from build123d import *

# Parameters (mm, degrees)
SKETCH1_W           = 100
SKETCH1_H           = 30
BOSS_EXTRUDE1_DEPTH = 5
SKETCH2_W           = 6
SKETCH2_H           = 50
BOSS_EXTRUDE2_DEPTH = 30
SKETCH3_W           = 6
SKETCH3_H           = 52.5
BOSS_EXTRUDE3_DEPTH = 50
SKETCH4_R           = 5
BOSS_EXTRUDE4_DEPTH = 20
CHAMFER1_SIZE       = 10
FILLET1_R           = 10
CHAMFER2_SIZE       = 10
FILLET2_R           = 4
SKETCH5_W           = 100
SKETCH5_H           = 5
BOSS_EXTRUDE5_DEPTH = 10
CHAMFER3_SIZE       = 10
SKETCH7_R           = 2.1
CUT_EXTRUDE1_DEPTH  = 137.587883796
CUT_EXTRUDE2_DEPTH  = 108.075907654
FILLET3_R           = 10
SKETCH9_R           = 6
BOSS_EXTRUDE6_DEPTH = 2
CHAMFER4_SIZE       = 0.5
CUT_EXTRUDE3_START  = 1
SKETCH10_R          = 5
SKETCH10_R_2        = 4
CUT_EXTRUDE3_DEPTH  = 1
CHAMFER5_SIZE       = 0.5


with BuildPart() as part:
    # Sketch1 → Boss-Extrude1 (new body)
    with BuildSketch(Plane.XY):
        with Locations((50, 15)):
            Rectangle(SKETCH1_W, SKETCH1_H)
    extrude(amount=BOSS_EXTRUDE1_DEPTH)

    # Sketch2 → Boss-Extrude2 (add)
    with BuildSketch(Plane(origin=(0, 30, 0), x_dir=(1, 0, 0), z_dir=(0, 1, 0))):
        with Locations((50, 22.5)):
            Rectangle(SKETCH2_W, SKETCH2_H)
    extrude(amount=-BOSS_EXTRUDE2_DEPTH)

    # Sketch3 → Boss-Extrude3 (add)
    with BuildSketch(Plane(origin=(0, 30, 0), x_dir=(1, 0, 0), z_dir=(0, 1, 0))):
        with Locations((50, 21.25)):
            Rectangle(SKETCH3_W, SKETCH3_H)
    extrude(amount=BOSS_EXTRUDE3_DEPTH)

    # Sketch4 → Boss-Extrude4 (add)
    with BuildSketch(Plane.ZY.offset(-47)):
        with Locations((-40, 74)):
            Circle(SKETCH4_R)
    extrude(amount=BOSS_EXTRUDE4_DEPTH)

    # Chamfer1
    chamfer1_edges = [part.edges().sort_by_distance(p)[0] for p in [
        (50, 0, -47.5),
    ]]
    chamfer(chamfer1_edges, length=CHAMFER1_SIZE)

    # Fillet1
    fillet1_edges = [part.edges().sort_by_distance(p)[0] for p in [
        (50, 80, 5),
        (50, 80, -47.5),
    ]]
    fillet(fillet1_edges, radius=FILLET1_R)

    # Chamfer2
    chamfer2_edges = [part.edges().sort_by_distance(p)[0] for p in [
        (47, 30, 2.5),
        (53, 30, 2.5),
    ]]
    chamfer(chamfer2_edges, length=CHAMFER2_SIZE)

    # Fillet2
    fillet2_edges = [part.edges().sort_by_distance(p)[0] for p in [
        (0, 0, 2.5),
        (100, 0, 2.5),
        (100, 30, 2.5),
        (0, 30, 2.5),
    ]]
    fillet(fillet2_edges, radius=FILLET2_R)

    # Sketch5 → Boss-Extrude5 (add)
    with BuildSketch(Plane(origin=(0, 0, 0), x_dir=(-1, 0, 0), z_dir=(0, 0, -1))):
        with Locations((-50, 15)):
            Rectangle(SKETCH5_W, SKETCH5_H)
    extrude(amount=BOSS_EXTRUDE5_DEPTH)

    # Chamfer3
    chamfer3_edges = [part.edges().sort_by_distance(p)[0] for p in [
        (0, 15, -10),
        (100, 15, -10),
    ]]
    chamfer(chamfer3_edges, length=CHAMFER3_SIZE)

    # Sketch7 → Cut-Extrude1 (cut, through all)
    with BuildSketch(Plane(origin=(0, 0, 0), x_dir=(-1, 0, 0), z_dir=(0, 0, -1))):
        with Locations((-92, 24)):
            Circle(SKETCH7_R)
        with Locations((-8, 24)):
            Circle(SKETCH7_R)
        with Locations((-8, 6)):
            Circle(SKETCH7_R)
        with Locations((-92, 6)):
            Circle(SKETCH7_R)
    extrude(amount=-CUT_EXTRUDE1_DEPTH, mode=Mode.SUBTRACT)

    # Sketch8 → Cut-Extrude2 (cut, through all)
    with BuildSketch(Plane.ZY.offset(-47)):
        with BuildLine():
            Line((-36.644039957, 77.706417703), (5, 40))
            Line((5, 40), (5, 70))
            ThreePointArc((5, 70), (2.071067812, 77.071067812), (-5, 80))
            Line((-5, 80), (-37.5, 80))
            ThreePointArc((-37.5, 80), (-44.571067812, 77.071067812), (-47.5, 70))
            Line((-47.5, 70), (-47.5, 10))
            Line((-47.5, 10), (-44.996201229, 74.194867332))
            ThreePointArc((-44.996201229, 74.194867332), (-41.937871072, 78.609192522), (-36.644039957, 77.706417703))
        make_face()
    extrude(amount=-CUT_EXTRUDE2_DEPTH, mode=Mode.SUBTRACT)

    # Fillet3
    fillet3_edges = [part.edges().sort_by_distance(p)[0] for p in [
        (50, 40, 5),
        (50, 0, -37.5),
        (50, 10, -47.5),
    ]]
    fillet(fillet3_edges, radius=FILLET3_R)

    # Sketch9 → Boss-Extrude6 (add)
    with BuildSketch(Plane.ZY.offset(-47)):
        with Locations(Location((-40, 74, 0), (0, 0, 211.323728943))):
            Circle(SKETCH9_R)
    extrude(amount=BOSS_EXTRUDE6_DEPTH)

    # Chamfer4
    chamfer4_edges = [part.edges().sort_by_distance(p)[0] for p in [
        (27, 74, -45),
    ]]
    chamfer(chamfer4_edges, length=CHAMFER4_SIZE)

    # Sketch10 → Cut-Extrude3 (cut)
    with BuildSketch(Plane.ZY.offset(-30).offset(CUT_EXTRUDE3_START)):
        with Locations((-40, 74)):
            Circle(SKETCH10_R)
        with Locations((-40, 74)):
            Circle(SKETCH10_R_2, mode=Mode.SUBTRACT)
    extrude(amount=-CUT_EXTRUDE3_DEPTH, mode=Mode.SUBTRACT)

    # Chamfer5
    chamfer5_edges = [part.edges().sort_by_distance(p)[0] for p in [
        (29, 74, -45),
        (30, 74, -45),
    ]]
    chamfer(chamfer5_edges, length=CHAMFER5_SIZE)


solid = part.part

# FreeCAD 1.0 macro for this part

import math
import FreeCAD as App
import Part
import Sketcher


def edges_at(feature, points):
    """Names of the edges that pass closest to the given points."""
    edges = feature.Shape.Edges
    near = lambda p: min(range(len(edges)), key=lambda i: edges[i].distToShape(Part.Vertex(*p))[0])
    return sorted({f"Edge{near(p) + 1}" for p in points})

doc = App.newDocument("Part")
params = doc.addObject("Spreadsheet::Sheet", "Params")
for row, (alias, value) in enumerate([
    ("sketch1_width", "100 mm"),
    ("sketch1_height", "30 mm"),
    ("pad1_length", "5 mm"),
    ("sketch2_width", "6 mm"),
    ("sketch2_height", "50 mm"),
    ("pad2_length", "30 mm"),
    ("sketch3_width", "6 mm"),
    ("sketch3_height", "52.5 mm"),
    ("pad3_length", "50 mm"),
    ("sketch4_diameter", "10 mm"),
    ("pad4_length", "20 mm"),
    ("chamfer_size", "10 mm"),
    ("fillet_radius", "10 mm"),
    ("chamfer2_size", "10 mm"),
    ("fillet2_radius", "4 mm"),
    ("sketch5_width", "100 mm"),
    ("sketch5_height", "5 mm"),
    ("pad5_length", "10 mm"),
    ("chamfer3_size", "10 mm"),
    ("sketch6_diameter", "4.2 mm"),
    ("sketch7_radius", "10 mm"),
    ("sketch7_radius2", "5 mm"),
    ("sketch7_width", "30 mm"),
    ("sketch7_width2", "60 mm"),
    ("sketch7_height", "32.5 mm"),
    ("fillet3_radius", "10 mm"),
    ("sketch8_diameter", "12 mm"),
    ("pad6_length", "2 mm"),
    ("chamfer4_size", "0.5 mm"),
    ("sketch9_diameter", "10 mm"),
    ("sketch9_diameter2", "8 mm"),
    ("pocket3_length", "1 mm"),
    ("chamfer5_size", "0.5 mm"),
], start=1):
    params.set(f"A{row}", alias)
    params.set(f"B{row}", "=" + value)
    params.setAlias(f"B{row}", alias)

body = doc.addObject("PartDesign::Body", "Body")

# Sketch on XY plane
sketch1 = doc.addObject("Sketcher::SketchObject", "Sketch")
body.addObject(sketch1)
sketch1.AttachmentSupport = (doc.XY_Plane, [""])
sketch1.MapMode = "FlatFace"
sketch1.addGeometry(Part.LineSegment(App.Vector(0, 30, 0), App.Vector(0, 0, 0)), False)
sketch1.addGeometry(Part.LineSegment(App.Vector(0, 0, 0), App.Vector(100, 0, 0)), False)
sketch1.addGeometry(Part.LineSegment(App.Vector(100, 0, 0), App.Vector(100, 30, 0)), False)
sketch1.addGeometry(Part.LineSegment(App.Vector(100, 30, 0), App.Vector(0, 30, 0)), False)
sketch1.addConstraint(Sketcher.Constraint("Coincident", 0, 2, 1, 1))
sketch1.addConstraint(Sketcher.Constraint("Coincident", 1, 2, 2, 1))
sketch1.addConstraint(Sketcher.Constraint("Coincident", 2, 2, 3, 1))
sketch1.addConstraint(Sketcher.Constraint("Coincident", 3, 2, 0, 1))
sketch1.addConstraint(Sketcher.Constraint("Vertical", 0))
sketch1.addConstraint(Sketcher.Constraint("Horizontal", 1))
sketch1.addConstraint(Sketcher.Constraint("Vertical", 2))
sketch1.addConstraint(Sketcher.Constraint("Horizontal", 3))
sketch1.addConstraint(Sketcher.Constraint("Coincident", 0, 2, -1, 1))
sketch1.addConstraint(Sketcher.Constraint("DistanceX", 1, 1, 1, 2, 100.0))
sketch1.addConstraint(Sketcher.Constraint("DistanceY", 0, 2, 0, 1, 30.0))
sketch1.setExpression("Constraints[9]", "Params.sketch1_width")
sketch1.setExpression("Constraints[10]", "Params.sketch1_height")
pad1 = doc.addObject("PartDesign::Pad", "Pad")
body.addObject(pad1)
pad1.Profile = sketch1
pad1.setExpression("Length", "Params.pad1_length")

# Sketch on XZ plane
sketch2 = doc.addObject("Sketcher::SketchObject", "Sketch001")
body.addObject(sketch2)
sketch2.AttachmentSupport = (doc.XZ_Plane, [""])
sketch2.MapMode = "FlatFace"
sketch2.AttachmentOffset = App.Placement(App.Vector(0, 0, -30), App.Rotation())
sketch2.addGeometry(Part.LineSegment(App.Vector(47, -47.5, 0), App.Vector(47, 2.5, 0)), False)
sketch2.addGeometry(Part.LineSegment(App.Vector(47, 2.5, 0), App.Vector(53, 2.5, 0)), False)
sketch2.addGeometry(Part.LineSegment(App.Vector(53, 2.5, 0), App.Vector(53, -47.5, 0)), False)
sketch2.addGeometry(Part.LineSegment(App.Vector(53, -47.5, 0), App.Vector(47, -47.5, 0)), False)
sketch2.addConstraint(Sketcher.Constraint("Coincident", 0, 2, 1, 1))
sketch2.addConstraint(Sketcher.Constraint("Coincident", 1, 2, 2, 1))
sketch2.addConstraint(Sketcher.Constraint("Coincident", 2, 2, 3, 1))
sketch2.addConstraint(Sketcher.Constraint("Coincident", 3, 2, 0, 1))
sketch2.addConstraint(Sketcher.Constraint("Vertical", 0))
sketch2.addConstraint(Sketcher.Constraint("Horizontal", 1))
sketch2.addConstraint(Sketcher.Constraint("Vertical", 2))
sketch2.addConstraint(Sketcher.Constraint("Horizontal", 3))
sketch2.addConstraint(Sketcher.Constraint("DistanceX", 1, 1, 1, 2, 6.0))
sketch2.addConstraint(Sketcher.Constraint("DistanceY", 0, 1, 0, 2, 50.0))
sketch2.addConstraint(Sketcher.Constraint("DistanceX", -1, 1, 0, 2, 47.0))
sketch2.addConstraint(Sketcher.Constraint("DistanceY", -1, 1, 0, 2, 2.5))
sketch2.setExpression("Constraints[8]", "Params.sketch2_width")
sketch2.setExpression("Constraints[9]", "Params.sketch2_height")
pad2 = doc.addObject("PartDesign::Pad", "Pad001")
body.addObject(pad2)
pad2.Profile = sketch2
pad2.setExpression("Length", "Params.pad2_length")

# Sketch on XZ plane
sketch3 = doc.addObject("Sketcher::SketchObject", "Sketch002")
body.addObject(sketch3)
sketch3.AttachmentSupport = (doc.XZ_Plane, [""])
sketch3.MapMode = "FlatFace"
sketch3.AttachmentOffset = App.Placement(App.Vector(0, 0, -30), App.Rotation())
sketch3.addGeometry(Part.LineSegment(App.Vector(47, -47.5, 0), App.Vector(47, 5, 0)), False)
sketch3.addGeometry(Part.LineSegment(App.Vector(47, 5, 0), App.Vector(53, 5, 0)), False)
sketch3.addGeometry(Part.LineSegment(App.Vector(53, 5, 0), App.Vector(53, -47.5, 0)), False)
sketch3.addGeometry(Part.LineSegment(App.Vector(53, -47.5, 0), App.Vector(47, -47.5, 0)), False)
sketch3.addConstraint(Sketcher.Constraint("Coincident", 0, 2, 1, 1))
sketch3.addConstraint(Sketcher.Constraint("Coincident", 1, 2, 2, 1))
sketch3.addConstraint(Sketcher.Constraint("Coincident", 2, 2, 3, 1))
sketch3.addConstraint(Sketcher.Constraint("Coincident", 3, 2, 0, 1))
sketch3.addConstraint(Sketcher.Constraint("Vertical", 0))
sketch3.addConstraint(Sketcher.Constraint("Horizontal", 1))
sketch3.addConstraint(Sketcher.Constraint("Vertical", 2))
sketch3.addConstraint(Sketcher.Constraint("Horizontal", 3))
sketch3.addConstraint(Sketcher.Constraint("DistanceX", 1, 1, 1, 2, 6.0))
sketch3.addConstraint(Sketcher.Constraint("DistanceY", 0, 1, 0, 2, 52.5))
sketch3.addConstraint(Sketcher.Constraint("DistanceX", -1, 1, 0, 2, 47.0))
sketch3.addConstraint(Sketcher.Constraint("DistanceY", -1, 1, 0, 2, 5.0))
sketch3.setExpression("Constraints[8]", "Params.sketch3_width")
sketch3.setExpression("Constraints[9]", "Params.sketch3_height")
pad3 = doc.addObject("PartDesign::Pad", "Pad002")
body.addObject(pad3)
pad3.Profile = sketch3
pad3.setExpression("Length", "Params.pad3_length")
pad3.Reversed = True

# Sketch on YZ plane
sketch4 = doc.addObject("Sketcher::SketchObject", "Sketch003")
body.addObject(sketch4)
sketch4.AttachmentSupport = (doc.YZ_Plane, [""])
sketch4.MapMode = "FlatFace"
sketch4.AttachmentOffset = App.Placement(App.Vector(0, 0, 47), App.Rotation())
sketch4.addGeometry(Part.Circle(App.Vector(74, -40, 0), App.Vector(0, 0, 1), 5), False)
sketch4.addConstraint(Sketcher.Constraint("Diameter", 0, 10.0))
sketch4.addConstraint(Sketcher.Constraint("DistanceX", -1, 1, 0, 3, 74.0))
sketch4.addConstraint(Sketcher.Constraint("DistanceY", 0, 3, -1, 1, 40.0))
sketch4.setExpression("Constraints[0]", "Params.sketch4_diameter")
pad4 = doc.addObject("PartDesign::Pad", "Pad003")
body.addObject(pad4)
pad4.Profile = sketch4
pad4.setExpression("Length", "Params.pad4_length")
pad4.Reversed = True
doc.recompute()

chamfer = doc.addObject("PartDesign::Chamfer", "Chamfer")
body.addObject(chamfer)
chamfer.Base = (pad4, edges_at(pad4, [(50, 0, -47.5)]))
chamfer.setExpression("Size", "Params.chamfer_size")
doc.recompute()

fillet = doc.addObject("PartDesign::Fillet", "Fillet")
body.addObject(fillet)
fillet.Base = (chamfer, edges_at(chamfer, [(50, 80, 5), (50, 80, -47.5)]))
fillet.setExpression("Radius", "Params.fillet_radius")
doc.recompute()

chamfer2 = doc.addObject("PartDesign::Chamfer", "Chamfer001")
body.addObject(chamfer2)
chamfer2.Base = (fillet, edges_at(fillet, [(47, 30, 2.5), (53, 30, 2.5)]))
chamfer2.setExpression("Size", "Params.chamfer2_size")
doc.recompute()

fillet2 = doc.addObject("PartDesign::Fillet", "Fillet001")
body.addObject(fillet2)
fillet2.Base = (chamfer2, edges_at(chamfer2, [
    (0, 0, 2.5),
    (100, 0, 2.5),
    (100, 30, 2.5),
    (0, 30, 2.5),
]))
fillet2.setExpression("Radius", "Params.fillet2_radius")

# Sketch on XY plane
sketch5 = doc.addObject("Sketcher::SketchObject", "Sketch004")
body.addObject(sketch5)
sketch5.AttachmentSupport = (doc.XY_Plane, [""])
sketch5.MapMode = "FlatFace"
sketch5.addGeometry(Part.LineSegment(App.Vector(100, 17.5, 0), App.Vector(100, 12.5, 0)), False)
sketch5.addGeometry(Part.LineSegment(App.Vector(100, 12.5, 0), App.Vector(0, 12.5, 0)), False)
sketch5.addGeometry(Part.LineSegment(App.Vector(0, 12.5, 0), App.Vector(0, 17.5, 0)), False)
sketch5.addGeometry(Part.LineSegment(App.Vector(0, 17.5, 0), App.Vector(100, 17.5, 0)), False)
sketch5.addConstraint(Sketcher.Constraint("Coincident", 0, 2, 1, 1))
sketch5.addConstraint(Sketcher.Constraint("Coincident", 1, 2, 2, 1))
sketch5.addConstraint(Sketcher.Constraint("Coincident", 2, 2, 3, 1))
sketch5.addConstraint(Sketcher.Constraint("Coincident", 3, 2, 0, 1))
sketch5.addConstraint(Sketcher.Constraint("Vertical", 0))
sketch5.addConstraint(Sketcher.Constraint("Horizontal", 1))
sketch5.addConstraint(Sketcher.Constraint("Vertical", 2))
sketch5.addConstraint(Sketcher.Constraint("Horizontal", 3))
sketch5.addConstraint(Sketcher.Constraint("PointOnObject", 1, 2, -2))
sketch5.addConstraint(Sketcher.Constraint("DistanceX", 1, 2, 1, 1, 100.0))
sketch5.addConstraint(Sketcher.Constraint("DistanceY", 0, 2, 0, 1, 5.0))
sketch5.addConstraint(Sketcher.Constraint("DistanceY", -1, 1, 0, 2, 12.5))
sketch5.setExpression("Constraints[9]", "Params.sketch5_width")
sketch5.setExpression("Constraints[10]", "Params.sketch5_height")
pad5 = doc.addObject("PartDesign::Pad", "Pad004")
body.addObject(pad5)
pad5.Profile = sketch5
pad5.setExpression("Length", "Params.pad5_length")
pad5.Reversed = True
doc.recompute()

chamfer3 = doc.addObject("PartDesign::Chamfer", "Chamfer002")
body.addObject(chamfer3)
chamfer3.Base = (pad5, edges_at(pad5, [(0, 15, -10), (100, 15, -10)]))
chamfer3.setExpression("Size", "Params.chamfer3_size")

# Sketch on XY plane
sketch6 = doc.addObject("Sketcher::SketchObject", "Sketch005")
body.addObject(sketch6)
sketch6.AttachmentSupport = (doc.XY_Plane, [""])
sketch6.MapMode = "FlatFace"
sketch6.addGeometry(Part.Circle(App.Vector(92, 24, 0), App.Vector(0, 0, 1), 2.1), False)
sketch6.addGeometry(Part.Circle(App.Vector(8, 24, 0), App.Vector(0, 0, 1), 2.1), False)
sketch6.addGeometry(Part.Circle(App.Vector(8, 6, 0), App.Vector(0, 0, 1), 2.1), False)
sketch6.addGeometry(Part.Circle(App.Vector(92, 6, 0), App.Vector(0, 0, 1), 2.1), False)
sketch6.addConstraint(Sketcher.Constraint("Equal", 0, 1))
sketch6.addConstraint(Sketcher.Constraint("Equal", 1, 2))
sketch6.addConstraint(Sketcher.Constraint("Equal", 2, 3))
sketch6.addConstraint(Sketcher.Constraint("Horizontal", 0, 3, 1, 3))
sketch6.addConstraint(Sketcher.Constraint("Horizontal", 2, 3, 3, 3))
sketch6.addConstraint(Sketcher.Constraint("Vertical", 1, 3, 2, 3))
sketch6.addConstraint(Sketcher.Constraint("Vertical", 0, 3, 3, 3))
sketch6.addConstraint(Sketcher.Constraint("Diameter", 0, 4.2))
sketch6.addConstraint(Sketcher.Constraint("DistanceX", -1, 1, 0, 3, 92.0))
sketch6.addConstraint(Sketcher.Constraint("DistanceY", -1, 1, 0, 3, 24.0))
sketch6.addConstraint(Sketcher.Constraint("DistanceX", -1, 1, 1, 3, 8.0))
sketch6.addConstraint(Sketcher.Constraint("DistanceY", -1, 1, 2, 3, 6.0))
sketch6.setExpression("Constraints[7]", "Params.sketch6_diameter")
pocket1 = doc.addObject("PartDesign::Pocket", "Pocket")
body.addObject(pocket1)
pocket1.Profile = sketch6
pocket1.Type = "ThroughAll"
pocket1.Reversed = True

# Sketch on YZ plane
sketch7 = doc.addObject("Sketcher::SketchObject", "Sketch006")
body.addObject(sketch7)
sketch7.AttachmentSupport = (doc.YZ_Plane, [""])
sketch7.MapMode = "FlatFace"
sketch7.AttachmentOffset = App.Placement(App.Vector(0, 0, 47), App.Rotation())
sketch7.addGeometry(Part.LineSegment(App.Vector(77.706418, -36.64404, 0), App.Vector(40, 5, 0)), False)
sketch7.addGeometry(Part.LineSegment(App.Vector(40, 5, 0), App.Vector(70, 5, 0)), False)
sketch7.addGeometry(Part.ArcOfCircle(Part.Circle(App.Vector(70, -5, 0), App.Vector(0, 0, 1), 10), math.radians(0), math.radians(90)), False)
sketch7.addGeometry(Part.LineSegment(App.Vector(80, -5, 0), App.Vector(80, -37.5, 0)), False)
sketch7.addGeometry(Part.ArcOfCircle(Part.Circle(App.Vector(70, -37.5, 0), App.Vector(0, 0, 1), 10), math.radians(-90), math.radians(0)), False)
sketch7.addGeometry(Part.LineSegment(App.Vector(70, -47.5, 0), App.Vector(10, -47.5, 0)), False)
sketch7.addGeometry(Part.LineSegment(App.Vector(10, -47.5, 0), App.Vector(74.194867, -44.996201, 0)), False)
sketch7.addGeometry(Part.ArcOfCircle(Part.Circle(App.Vector(74, -40, 0), App.Vector(0, 0, 1), 5), math.radians(-87.766419), math.radians(42.159131)), False)
sketch7.addConstraint(Sketcher.Constraint("Coincident", 0, 2, 1, 1))
sketch7.addConstraint(Sketcher.Constraint("Tangent", 1, 2, 2, 2))
sketch7.addConstraint(Sketcher.Constraint("Tangent", 2, 1, 3, 1))
sketch7.addConstraint(Sketcher.Constraint("Tangent", 3, 2, 4, 2))
sketch7.addConstraint(Sketcher.Constraint("Tangent", 4, 1, 5, 1))
sketch7.addConstraint(Sketcher.Constraint("Coincident", 5, 2, 6, 1))
sketch7.addConstraint(Sketcher.Constraint("Tangent", 6, 2, 7, 1))
sketch7.addConstraint(Sketcher.Constraint("Tangent", 7, 2, 0, 1))
sketch7.addConstraint(Sketcher.Constraint("Horizontal", 1))
sketch7.addConstraint(Sketcher.Constraint("Vertical", 3))
sketch7.addConstraint(Sketcher.Constraint("Horizontal", 5))
sketch7.addConstraint(Sketcher.Constraint("Equal", 2, 4))
sketch7.addConstraint(Sketcher.Constraint("Radius", 2, 10.0))
sketch7.addConstraint(Sketcher.Constraint("Radius", 7, 5.0))
sketch7.addConstraint(Sketcher.Constraint("DistanceX", 1, 1, 1, 2, 30.0))
sketch7.addConstraint(Sketcher.Constraint("DistanceX", 5, 2, 5, 1, 60.0))
sketch7.addConstraint(Sketcher.Constraint("DistanceY", 3, 2, 3, 1, 32.5))
sketch7.addConstraint(Sketcher.Constraint("DistanceX", -1, 1, 2, 3, 70.0))
sketch7.addConstraint(Sketcher.Constraint("DistanceY", 2, 3, -1, 1, 5.0))
sketch7.addConstraint(Sketcher.Constraint("DistanceX", -1, 1, 7, 3, 74.0))
sketch7.addConstraint(Sketcher.Constraint("DistanceY", 7, 3, -1, 1, 40.0))
sketch7.setExpression("Constraints[12]", "Params.sketch7_radius")
sketch7.setExpression("Constraints[13]", "Params.sketch7_radius2")
sketch7.setExpression("Constraints[14]", "Params.sketch7_width")
sketch7.setExpression("Constraints[15]", "Params.sketch7_width2")
sketch7.setExpression("Constraints[16]", "Params.sketch7_height")
pocket2 = doc.addObject("PartDesign::Pocket", "Pocket001")
body.addObject(pocket2)
pocket2.Profile = sketch7
pocket2.Type = "ThroughAll"
pocket2.Reversed = True
doc.recompute()

fillet3 = doc.addObject("PartDesign::Fillet", "Fillet002")
body.addObject(fillet3)
fillet3.Base = (pocket2, edges_at(pocket2, [(50, 40, 5), (50, 0, -37.5), (50, 10, -47.5)]))
fillet3.setExpression("Radius", "Params.fillet3_radius")

# Sketch on YZ plane
sketch8 = doc.addObject("Sketcher::SketchObject", "Sketch007")
body.addObject(sketch8)
sketch8.AttachmentSupport = (doc.YZ_Plane, [""])
sketch8.MapMode = "FlatFace"
sketch8.AttachmentOffset = App.Placement(App.Vector(0, 0, 47), App.Rotation())
sketch8.addGeometry(Part.Circle(App.Vector(74, -40, 0), App.Vector(0, 0, 1), 6), False)
sketch8.addConstraint(Sketcher.Constraint("Diameter", 0, 12.0))
sketch8.addConstraint(Sketcher.Constraint("DistanceX", -1, 1, 0, 3, 74.0))
sketch8.addConstraint(Sketcher.Constraint("DistanceY", 0, 3, -1, 1, 40.0))
sketch8.setExpression("Constraints[0]", "Params.sketch8_diameter")
pad6 = doc.addObject("PartDesign::Pad", "Pad005")
body.addObject(pad6)
pad6.Profile = sketch8
pad6.setExpression("Length", "Params.pad6_length")
pad6.Reversed = True
doc.recompute()

chamfer4 = doc.addObject("PartDesign::Chamfer", "Chamfer003")
body.addObject(chamfer4)
chamfer4.Base = (pad6, edges_at(pad6, [(27, 74, -45)]))
chamfer4.setExpression("Size", "Params.chamfer4_size")

# Sketch on YZ plane
sketch9 = doc.addObject("Sketcher::SketchObject", "Sketch008")
body.addObject(sketch9)
sketch9.AttachmentSupport = (doc.YZ_Plane, [""])
sketch9.MapMode = "FlatFace"
sketch9.AttachmentOffset = App.Placement(App.Vector(0, 0, 29), App.Rotation())
sketch9.addGeometry(Part.Circle(App.Vector(74, -40, 0), App.Vector(0, 0, 1), 5), False)
sketch9.addGeometry(Part.Circle(App.Vector(74, -40, 0), App.Vector(0, 0, 1), 4), False)
sketch9.addConstraint(Sketcher.Constraint("Coincident", 1, 3, 0, 3))
sketch9.addConstraint(Sketcher.Constraint("Diameter", 0, 10.0))
sketch9.addConstraint(Sketcher.Constraint("Diameter", 1, 8.0))
sketch9.addConstraint(Sketcher.Constraint("DistanceX", -1, 1, 0, 3, 74.0))
sketch9.addConstraint(Sketcher.Constraint("DistanceY", 0, 3, -1, 1, 40.0))
sketch9.setExpression("Constraints[1]", "Params.sketch9_diameter")
sketch9.setExpression("Constraints[2]", "Params.sketch9_diameter2")
pocket3 = doc.addObject("PartDesign::Pocket", "Pocket002")
body.addObject(pocket3)
pocket3.Profile = sketch9
pocket3.setExpression("Length", "Params.pocket3_length")
pocket3.Reversed = True
doc.recompute()

chamfer5 = doc.addObject("PartDesign::Chamfer", "Chamfer004")
body.addObject(chamfer5)
chamfer5.Base = (pocket3, edges_at(pocket3, [(29, 74, -45), (30, 74, -45)]))
chamfer5.setExpression("Size", "Params.chamfer5_size")

doc.recompute()
